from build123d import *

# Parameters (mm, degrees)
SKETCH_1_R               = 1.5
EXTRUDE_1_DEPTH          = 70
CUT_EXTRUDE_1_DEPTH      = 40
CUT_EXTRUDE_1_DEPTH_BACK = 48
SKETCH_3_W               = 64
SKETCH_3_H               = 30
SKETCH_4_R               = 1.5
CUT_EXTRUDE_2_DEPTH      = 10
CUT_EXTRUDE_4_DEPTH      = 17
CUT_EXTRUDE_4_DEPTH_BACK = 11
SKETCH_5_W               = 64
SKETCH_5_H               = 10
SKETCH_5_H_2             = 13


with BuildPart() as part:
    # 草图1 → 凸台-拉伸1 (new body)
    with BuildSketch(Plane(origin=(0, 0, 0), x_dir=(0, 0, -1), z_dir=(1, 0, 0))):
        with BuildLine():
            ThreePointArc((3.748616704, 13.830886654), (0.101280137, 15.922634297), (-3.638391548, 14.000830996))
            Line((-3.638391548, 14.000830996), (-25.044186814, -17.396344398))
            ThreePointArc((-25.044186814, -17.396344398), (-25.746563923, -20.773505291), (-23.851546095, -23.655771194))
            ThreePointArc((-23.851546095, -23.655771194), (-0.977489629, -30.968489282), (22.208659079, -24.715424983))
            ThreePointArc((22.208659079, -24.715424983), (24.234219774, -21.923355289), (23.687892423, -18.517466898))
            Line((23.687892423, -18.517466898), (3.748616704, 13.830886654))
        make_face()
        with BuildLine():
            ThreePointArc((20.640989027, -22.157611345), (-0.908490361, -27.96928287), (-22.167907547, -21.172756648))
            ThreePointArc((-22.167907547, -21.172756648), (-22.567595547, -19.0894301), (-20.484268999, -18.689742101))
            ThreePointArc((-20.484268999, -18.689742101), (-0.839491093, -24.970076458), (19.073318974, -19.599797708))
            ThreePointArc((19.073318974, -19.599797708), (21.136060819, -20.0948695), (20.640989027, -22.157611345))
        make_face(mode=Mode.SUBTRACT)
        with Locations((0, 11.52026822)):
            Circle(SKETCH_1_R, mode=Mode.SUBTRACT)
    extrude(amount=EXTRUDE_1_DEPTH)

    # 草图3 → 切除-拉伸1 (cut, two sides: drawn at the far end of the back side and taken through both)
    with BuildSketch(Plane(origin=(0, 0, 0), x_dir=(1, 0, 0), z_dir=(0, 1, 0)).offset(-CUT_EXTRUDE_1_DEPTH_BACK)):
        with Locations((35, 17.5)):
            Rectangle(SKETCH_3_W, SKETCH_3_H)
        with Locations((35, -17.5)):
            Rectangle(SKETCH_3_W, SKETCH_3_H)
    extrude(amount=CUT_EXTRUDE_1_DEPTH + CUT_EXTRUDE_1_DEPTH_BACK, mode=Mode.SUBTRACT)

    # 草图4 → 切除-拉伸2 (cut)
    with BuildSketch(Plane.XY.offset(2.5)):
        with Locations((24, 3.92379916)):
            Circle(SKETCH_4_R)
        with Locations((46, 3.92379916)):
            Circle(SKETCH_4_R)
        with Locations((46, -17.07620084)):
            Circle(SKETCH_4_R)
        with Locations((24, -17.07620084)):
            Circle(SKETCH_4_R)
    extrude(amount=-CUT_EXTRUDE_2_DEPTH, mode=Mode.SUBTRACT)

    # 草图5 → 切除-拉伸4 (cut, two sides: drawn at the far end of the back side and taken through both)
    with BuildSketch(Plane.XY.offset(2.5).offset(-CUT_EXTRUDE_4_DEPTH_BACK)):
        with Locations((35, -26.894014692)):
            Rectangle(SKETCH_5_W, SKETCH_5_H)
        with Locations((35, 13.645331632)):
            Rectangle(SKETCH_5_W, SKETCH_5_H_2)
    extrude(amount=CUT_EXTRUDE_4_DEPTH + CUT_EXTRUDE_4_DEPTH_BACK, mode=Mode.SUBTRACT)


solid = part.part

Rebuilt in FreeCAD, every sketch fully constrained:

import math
import FreeCAD as App
import Part
import Sketcher
from FreeCAD import Vector
Q = App.Units.Quantity


def add_polygon(sketch, points):
    """Adds a closed chain of lines whose ends are joined by coincident constraints."""
    first, n = sketch.GeometryCount, len(points)
    for a, b in zip(points, points[1:] + points[:1]):
        sketch.addGeometry(Part.LineSegment(App.Vector(*a, 0), App.Vector(*b, 0)), False)
    for i in range(n):
        sketch.addConstraint(Sketcher.Constraint("Coincident", first + i, 2, first + (i + 1) % n, 1))

doc = App.newDocument("Part")
body = doc.addObject("PartDesign::Body", "Body")

# Sketch on YZ plane
sketch1 = doc.addObject("Sketcher::SketchObject", "Sketch")
body.addObject(sketch1)
sketch1.AttachmentSupport = (doc.YZ_Plane, [""])
sketch1.MapMode = "FlatFace"
sketch1.addGeometry([
    Part.ArcOfCircle(Part.Circle(Vector(11.5, 0, 0), Vector(0, 0, 1), 4.4), math.radians(-58), math.radians(56)),  # 0
    Part.LineSegment(Vector(14, 3.6, 0), Vector(-17.4, 25, 0)),  # 1
    Part.ArcOfCircle(Part.Circle(Vector(-19.9, 21.3, 0), Vector(0, 0, 1), 4.5), math.radians(56), math.radians(146)),  # 2
    Part.ArcOfCircle(Part.Circle(Vector(11.5, 0, 0), Vector(0, 0, 1), 42.5), math.radians(146), math.radians(212)),  # 3
    Part.ArcOfCircle(Part.Circle(Vector(-20.9, -19.9, 0), Vector(0, 0, 1), 4.5), math.radians(-148), math.radians(-58)),  # 4
    Part.LineSegment(Vector(-18.5, -23.7, 0), Vector(13.8, -3.7, 0)),  # 5
    Part.ArcOfCircle(Part.Circle(Vector(-20.9, -19.9, 0), Vector(0, 0, 1), 1.5), math.radians(-148), math.radians(32)),  # 6
    Part.ArcOfCircle(Part.Circle(Vector(11.5, 0, 0), Vector(0, 0, 1), 39.5), math.radians(146), math.radians(212)),  # 7
    Part.ArcOfCircle(Part.Circle(Vector(-19.9, 21.3, 0), Vector(0, 0, 1), 1.5), math.radians(-34), math.radians(146)),  # 8
    Part.ArcOfCircle(Part.Circle(Vector(11.5, 0, 0), Vector(0, 0, 1), 36.5), math.radians(146), math.radians(212)),  # 9
    Part.Circle(Vector(11.5, 0, 0), Vector(0, 0, 1), 1.5),  # 10
], False)
sketch1.addConstraint([
    Sketcher.Constraint("Tangent", 0, 2, 1, 1),
    Sketcher.Constraint("Tangent", 1, 2, 2, 1),
    Sketcher.Constraint("Tangent", 2, 2, 3, 1),
    Sketcher.Constraint("Tangent", 3, 2, 4, 1),
    Sketcher.Constraint("Tangent", 4, 2, 5, 1),
    Sketcher.Constraint("Tangent", 5, 2, 0, 1),
    Sketcher.Constraint("Tangent", 6, 1, 7, 2),
    Sketcher.Constraint("Tangent", 7, 1, 8, 2),
    Sketcher.Constraint("Tangent", 8, 1, 9, 1),
    Sketcher.Constraint("Tangent", 9, 2, 6, 2),
    Sketcher.Constraint("Coincident", 3, 3, 0, 3),
    Sketcher.Constraint("Coincident", 6, 3, 4, 3),
    Sketcher.Constraint("Coincident", 7, 3, 0, 3),
    Sketcher.Constraint("Coincident", 8, 3, 2, 3),
    Sketcher.Constraint("Coincident", 9, 3, 0, 3),
    Sketcher.Constraint("Coincident", 10, 3, 0, 3),
    Sketcher.Constraint("Equal", 8, 10),
    Sketcher.Constraint("PointOnObject", 0, 3, -1),
    Sketcher.Constraint("Diameter", 10, Q("3 mm")),
    Sketcher.Constraint("Radius", 2, Q("4.5 mm")),
    Sketcher.Constraint("Radius", 3, Q("42.5 mm")),
    Sketcher.Constraint("Radius", 0, Q("4.403531 mm")),
    Sketcher.Constraint("DistanceY", 2, 3, 1, 2, Q("3.718099 mm")),
    Sketcher.Constraint("DistanceX", -1, 1, 0, 3, Q("11.520268 mm")),
    Sketcher.Constraint("DistanceY", 3, 2, -1, 1, Q("22.208659 mm")),
])
pad1 = doc.addObject("PartDesign::Pad", "Pad")
body.addObject(pad1)
pad1.Profile = sketch1
pad1.Length = 70

# Sketch on XZ plane
sketch2 = doc.addObject("Sketcher::SketchObject", "Sketch001")
body.addObject(sketch2)
sketch2.AttachmentSupport = (doc.XZ_Plane, [""])
sketch2.MapMode = "FlatFace"
add_polygon(sketch2, [(3, -32), (3, -2), (67, -2), (67, -32)])  # lines 0-3
add_polygon(sketch2, [(3, 2), (3, 32), (67, 32), (67, 2)])  # lines 4-7
sketch2.addConstraint([
    Sketcher.Constraint("Vertical", 0),
    Sketcher.Constraint("Horizontal", 1),
    Sketcher.Constraint("Vertical", 2),
    Sketcher.Constraint("Horizontal", 3),
    Sketcher.Constraint("Vertical", 4),
    Sketcher.Constraint("Horizontal", 5),
    Sketcher.Constraint("Vertical", 6),
    Sketcher.Constraint("Horizontal", 7),
    Sketcher.Constraint("Symmetric", 3, 2, 4, 2, -1),
    Sketcher.Constraint("Symmetric", 1, 2, 6, 2, -1),
    Sketcher.Constraint("DistanceX", 1, 1, 1, 2, Q("64 mm")),
    Sketcher.Constraint("DistanceY", 0, 1, 0, 2, Q("30 mm")),
    Sketcher.Constraint("DistanceX", -1, 1, 0, 2, Q("3 mm")),
    Sketcher.Constraint("DistanceY", 0, 2, 4, 2, Q("35 mm")),
])
pocket1 = doc.addObject("PartDesign::Pocket", "Pocket")
body.addObject(pocket1)
pocket1.Profile = sketch2
pocket1.Type = "ThroughAll"
pocket1.Midplane = True

# Sketch on XY plane
sketch3 = doc.addObject("Sketcher::SketchObject", "Sketch002")
body.addObject(sketch3)
sketch3.AttachmentSupport = (doc.XY_Plane, [""])
sketch3.MapMode = "FlatFace"
sketch3.AttachmentOffset = App.Placement(Vector(0, 0, 2.5), App.Rotation())
sketch3.addGeometry([
    Part.Circle(Vector(24, 3.9, 0), Vector(0, 0, 1), 1.5),
    Part.Circle(Vector(46, 3.9, 0), Vector(0, 0, 1), 1.5),
    Part.Circle(Vector(46, -17.1, 0), Vector(0, 0, 1), 1.5),
    Part.Circle(Vector(24, -17.1, 0), Vector(0, 0, 1), 1.5),
], False)
sketch3.addConstraint([
    Sketcher.Constraint("Equal", 0, 1),
    Sketcher.Constraint("Equal", 1, 2),
    Sketcher.Constraint("Equal", 2, 3),
    Sketcher.Constraint("Horizontal", 0, 3, 1, 3),
    Sketcher.Constraint("Horizontal", 2, 3, 3, 3),
    Sketcher.Constraint("Vertical", 1, 3, 2, 3),
    Sketcher.Constraint("Vertical", 0, 3, 3, 3),
    Sketcher.Constraint("Diameter", 0, Q("3 mm")),
    Sketcher.Constraint("DistanceX", -1, 1, 0, 3, Q("24 mm")),
    Sketcher.Constraint("DistanceX", -1, 1, 1, 3, Q("46 mm")),
    Sketcher.Constraint("DistanceY", 2, 3, 1, 3, Q("21 mm")),
    Sketcher.Constraint("DistanceY", -1, 1, 0, 3, Q("3.923799 mm")),
])
pocket2 = doc.addObject("PartDesign::Pocket", "Pocket001")
body.addObject(pocket2)
pocket2.Profile = sketch3
pocket2.Length = 10

# Sketch on XY plane
sketch4 = doc.addObject("Sketcher::SketchObject", "Sketch003")
body.addObject(sketch4)
sketch4.AttachmentSupport = (doc.XY_Plane, [""])
sketch4.MapMode = "FlatFace"
sketch4.AttachmentOffset = App.Placement(Vector(0, 0, 2.5), App.Rotation())
add_polygon(sketch4, [(3, -22), (3, -32), (67, -32), (67, -22)])  # lines 0-3
add_polygon(sketch4, [(3, 20), (3, 7), (67, 7), (67, 20)])  # lines 4-7
sketch4.addConstraint([
    Sketcher.Constraint("Vertical", 0),
    Sketcher.Constraint("Horizontal", 1),
    Sketcher.Constraint("Vertical", 2),
    Sketcher.Constraint("Horizontal", 3),
    Sketcher.Constraint("Vertical", 4),
    Sketcher.Constraint("Horizontal", 5),
    Sketcher.Constraint("Vertical", 6),
    Sketcher.Constraint("Horizontal", 7),
    Sketcher.Constraint("Vertical", 3, 2, 4, 2),
    Sketcher.Constraint("Vertical", 2, 2, 5, 2),
    Sketcher.Constraint("DistanceX", 1, 1, 1, 2, Q("64 mm")),
    Sketcher.Constraint("DistanceY", 0, 2, 0, 1, Q("10 mm")),
    Sketcher.Constraint("DistanceY", 4, 2, 4, 1, Q("13 mm")),
    Sketcher.Constraint("DistanceX", -1, 1, 0, 2, Q("3 mm")),
    Sketcher.Constraint("DistanceY", -1, 1, 4, 2, Q("7.145332 mm")),
    Sketcher.Constraint("DistanceY", 0, 2, -1, 1, Q("31.894015 mm")),
])
pocket3 = doc.addObject("PartDesign::Pocket", "Pocket002")
body.addObject(pocket3)
pocket3.Profile = sketch4
pocket3.Type = "ThroughAll"
pocket3.Midplane = True

doc.recompute()
